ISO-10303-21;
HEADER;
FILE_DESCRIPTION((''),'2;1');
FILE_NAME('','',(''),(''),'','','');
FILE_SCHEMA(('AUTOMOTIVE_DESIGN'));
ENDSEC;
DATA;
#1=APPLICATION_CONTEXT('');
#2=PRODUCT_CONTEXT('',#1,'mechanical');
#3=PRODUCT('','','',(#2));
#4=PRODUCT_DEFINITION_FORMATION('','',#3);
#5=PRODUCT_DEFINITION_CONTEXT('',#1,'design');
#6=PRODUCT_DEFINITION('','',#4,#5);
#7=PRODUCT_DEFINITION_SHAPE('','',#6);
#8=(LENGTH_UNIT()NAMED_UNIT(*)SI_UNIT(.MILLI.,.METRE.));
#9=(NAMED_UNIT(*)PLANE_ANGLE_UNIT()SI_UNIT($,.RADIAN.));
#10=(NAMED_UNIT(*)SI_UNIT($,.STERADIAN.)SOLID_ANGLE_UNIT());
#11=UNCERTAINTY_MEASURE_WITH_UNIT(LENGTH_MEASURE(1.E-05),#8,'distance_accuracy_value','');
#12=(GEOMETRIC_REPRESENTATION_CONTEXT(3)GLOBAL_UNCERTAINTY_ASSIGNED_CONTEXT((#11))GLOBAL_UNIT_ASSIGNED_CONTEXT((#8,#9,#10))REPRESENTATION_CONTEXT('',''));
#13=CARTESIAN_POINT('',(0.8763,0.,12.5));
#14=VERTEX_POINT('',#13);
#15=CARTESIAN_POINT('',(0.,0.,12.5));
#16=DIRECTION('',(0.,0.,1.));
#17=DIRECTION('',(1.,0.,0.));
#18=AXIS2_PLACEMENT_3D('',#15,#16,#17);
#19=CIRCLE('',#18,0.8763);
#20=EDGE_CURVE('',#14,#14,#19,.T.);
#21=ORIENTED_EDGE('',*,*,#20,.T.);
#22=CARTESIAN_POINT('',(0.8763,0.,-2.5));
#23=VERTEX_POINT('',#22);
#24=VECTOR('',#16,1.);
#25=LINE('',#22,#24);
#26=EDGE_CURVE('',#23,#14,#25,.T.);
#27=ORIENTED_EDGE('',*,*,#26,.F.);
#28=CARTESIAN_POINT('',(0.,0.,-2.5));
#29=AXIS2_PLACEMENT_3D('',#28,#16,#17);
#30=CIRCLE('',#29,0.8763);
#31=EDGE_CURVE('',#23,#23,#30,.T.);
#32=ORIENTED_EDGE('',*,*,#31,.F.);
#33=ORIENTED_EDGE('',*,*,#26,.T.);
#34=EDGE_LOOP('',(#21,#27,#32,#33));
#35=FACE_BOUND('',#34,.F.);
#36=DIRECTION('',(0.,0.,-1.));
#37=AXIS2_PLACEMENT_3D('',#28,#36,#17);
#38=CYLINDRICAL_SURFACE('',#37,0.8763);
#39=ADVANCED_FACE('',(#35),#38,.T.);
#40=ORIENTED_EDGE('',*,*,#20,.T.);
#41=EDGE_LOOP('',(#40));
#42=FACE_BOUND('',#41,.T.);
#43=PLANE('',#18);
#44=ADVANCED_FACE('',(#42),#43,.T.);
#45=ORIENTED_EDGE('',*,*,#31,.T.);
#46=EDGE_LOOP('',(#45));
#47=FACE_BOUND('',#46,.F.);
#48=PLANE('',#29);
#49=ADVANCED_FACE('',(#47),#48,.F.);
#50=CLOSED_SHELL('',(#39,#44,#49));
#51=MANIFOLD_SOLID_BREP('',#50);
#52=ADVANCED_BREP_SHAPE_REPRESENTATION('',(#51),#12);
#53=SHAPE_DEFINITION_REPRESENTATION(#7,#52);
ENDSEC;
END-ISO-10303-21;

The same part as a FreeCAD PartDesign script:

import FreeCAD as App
import Part
import Sketcher

V = App.Vector

doc = App.newDocument("Part")
body = doc.addObject("PartDesign::Body", "Body")

# Sketch on XY plane
sketch1 = doc.addObject("Sketcher::SketchObject", "Sketch")
body.addObject(sketch1)
sketch1.AttachmentSupport = (doc.XY_Plane, [""])
sketch1.MapMode = "FlatFace"
sketch1.AttachmentOffset = App.Placement(V(0, 0, -2.5), App.Rotation())
sketch1.addGeometry(Part.Circle(V(0, 0, 0), V(0, 0, 1), 0.8763), False)
sketch1.addConstraint([
    Sketcher.Constraint("Coincident", 0, 3, -1, 1),
    Sketcher.Constraint("Diameter", 0, 1.7526),
])
pad1 = doc.addObject("PartDesign::Pad", "Pad")
body.addObject(pad1)
pad1.Profile = sketch1
pad1.Length = 15

doc.recompute()
